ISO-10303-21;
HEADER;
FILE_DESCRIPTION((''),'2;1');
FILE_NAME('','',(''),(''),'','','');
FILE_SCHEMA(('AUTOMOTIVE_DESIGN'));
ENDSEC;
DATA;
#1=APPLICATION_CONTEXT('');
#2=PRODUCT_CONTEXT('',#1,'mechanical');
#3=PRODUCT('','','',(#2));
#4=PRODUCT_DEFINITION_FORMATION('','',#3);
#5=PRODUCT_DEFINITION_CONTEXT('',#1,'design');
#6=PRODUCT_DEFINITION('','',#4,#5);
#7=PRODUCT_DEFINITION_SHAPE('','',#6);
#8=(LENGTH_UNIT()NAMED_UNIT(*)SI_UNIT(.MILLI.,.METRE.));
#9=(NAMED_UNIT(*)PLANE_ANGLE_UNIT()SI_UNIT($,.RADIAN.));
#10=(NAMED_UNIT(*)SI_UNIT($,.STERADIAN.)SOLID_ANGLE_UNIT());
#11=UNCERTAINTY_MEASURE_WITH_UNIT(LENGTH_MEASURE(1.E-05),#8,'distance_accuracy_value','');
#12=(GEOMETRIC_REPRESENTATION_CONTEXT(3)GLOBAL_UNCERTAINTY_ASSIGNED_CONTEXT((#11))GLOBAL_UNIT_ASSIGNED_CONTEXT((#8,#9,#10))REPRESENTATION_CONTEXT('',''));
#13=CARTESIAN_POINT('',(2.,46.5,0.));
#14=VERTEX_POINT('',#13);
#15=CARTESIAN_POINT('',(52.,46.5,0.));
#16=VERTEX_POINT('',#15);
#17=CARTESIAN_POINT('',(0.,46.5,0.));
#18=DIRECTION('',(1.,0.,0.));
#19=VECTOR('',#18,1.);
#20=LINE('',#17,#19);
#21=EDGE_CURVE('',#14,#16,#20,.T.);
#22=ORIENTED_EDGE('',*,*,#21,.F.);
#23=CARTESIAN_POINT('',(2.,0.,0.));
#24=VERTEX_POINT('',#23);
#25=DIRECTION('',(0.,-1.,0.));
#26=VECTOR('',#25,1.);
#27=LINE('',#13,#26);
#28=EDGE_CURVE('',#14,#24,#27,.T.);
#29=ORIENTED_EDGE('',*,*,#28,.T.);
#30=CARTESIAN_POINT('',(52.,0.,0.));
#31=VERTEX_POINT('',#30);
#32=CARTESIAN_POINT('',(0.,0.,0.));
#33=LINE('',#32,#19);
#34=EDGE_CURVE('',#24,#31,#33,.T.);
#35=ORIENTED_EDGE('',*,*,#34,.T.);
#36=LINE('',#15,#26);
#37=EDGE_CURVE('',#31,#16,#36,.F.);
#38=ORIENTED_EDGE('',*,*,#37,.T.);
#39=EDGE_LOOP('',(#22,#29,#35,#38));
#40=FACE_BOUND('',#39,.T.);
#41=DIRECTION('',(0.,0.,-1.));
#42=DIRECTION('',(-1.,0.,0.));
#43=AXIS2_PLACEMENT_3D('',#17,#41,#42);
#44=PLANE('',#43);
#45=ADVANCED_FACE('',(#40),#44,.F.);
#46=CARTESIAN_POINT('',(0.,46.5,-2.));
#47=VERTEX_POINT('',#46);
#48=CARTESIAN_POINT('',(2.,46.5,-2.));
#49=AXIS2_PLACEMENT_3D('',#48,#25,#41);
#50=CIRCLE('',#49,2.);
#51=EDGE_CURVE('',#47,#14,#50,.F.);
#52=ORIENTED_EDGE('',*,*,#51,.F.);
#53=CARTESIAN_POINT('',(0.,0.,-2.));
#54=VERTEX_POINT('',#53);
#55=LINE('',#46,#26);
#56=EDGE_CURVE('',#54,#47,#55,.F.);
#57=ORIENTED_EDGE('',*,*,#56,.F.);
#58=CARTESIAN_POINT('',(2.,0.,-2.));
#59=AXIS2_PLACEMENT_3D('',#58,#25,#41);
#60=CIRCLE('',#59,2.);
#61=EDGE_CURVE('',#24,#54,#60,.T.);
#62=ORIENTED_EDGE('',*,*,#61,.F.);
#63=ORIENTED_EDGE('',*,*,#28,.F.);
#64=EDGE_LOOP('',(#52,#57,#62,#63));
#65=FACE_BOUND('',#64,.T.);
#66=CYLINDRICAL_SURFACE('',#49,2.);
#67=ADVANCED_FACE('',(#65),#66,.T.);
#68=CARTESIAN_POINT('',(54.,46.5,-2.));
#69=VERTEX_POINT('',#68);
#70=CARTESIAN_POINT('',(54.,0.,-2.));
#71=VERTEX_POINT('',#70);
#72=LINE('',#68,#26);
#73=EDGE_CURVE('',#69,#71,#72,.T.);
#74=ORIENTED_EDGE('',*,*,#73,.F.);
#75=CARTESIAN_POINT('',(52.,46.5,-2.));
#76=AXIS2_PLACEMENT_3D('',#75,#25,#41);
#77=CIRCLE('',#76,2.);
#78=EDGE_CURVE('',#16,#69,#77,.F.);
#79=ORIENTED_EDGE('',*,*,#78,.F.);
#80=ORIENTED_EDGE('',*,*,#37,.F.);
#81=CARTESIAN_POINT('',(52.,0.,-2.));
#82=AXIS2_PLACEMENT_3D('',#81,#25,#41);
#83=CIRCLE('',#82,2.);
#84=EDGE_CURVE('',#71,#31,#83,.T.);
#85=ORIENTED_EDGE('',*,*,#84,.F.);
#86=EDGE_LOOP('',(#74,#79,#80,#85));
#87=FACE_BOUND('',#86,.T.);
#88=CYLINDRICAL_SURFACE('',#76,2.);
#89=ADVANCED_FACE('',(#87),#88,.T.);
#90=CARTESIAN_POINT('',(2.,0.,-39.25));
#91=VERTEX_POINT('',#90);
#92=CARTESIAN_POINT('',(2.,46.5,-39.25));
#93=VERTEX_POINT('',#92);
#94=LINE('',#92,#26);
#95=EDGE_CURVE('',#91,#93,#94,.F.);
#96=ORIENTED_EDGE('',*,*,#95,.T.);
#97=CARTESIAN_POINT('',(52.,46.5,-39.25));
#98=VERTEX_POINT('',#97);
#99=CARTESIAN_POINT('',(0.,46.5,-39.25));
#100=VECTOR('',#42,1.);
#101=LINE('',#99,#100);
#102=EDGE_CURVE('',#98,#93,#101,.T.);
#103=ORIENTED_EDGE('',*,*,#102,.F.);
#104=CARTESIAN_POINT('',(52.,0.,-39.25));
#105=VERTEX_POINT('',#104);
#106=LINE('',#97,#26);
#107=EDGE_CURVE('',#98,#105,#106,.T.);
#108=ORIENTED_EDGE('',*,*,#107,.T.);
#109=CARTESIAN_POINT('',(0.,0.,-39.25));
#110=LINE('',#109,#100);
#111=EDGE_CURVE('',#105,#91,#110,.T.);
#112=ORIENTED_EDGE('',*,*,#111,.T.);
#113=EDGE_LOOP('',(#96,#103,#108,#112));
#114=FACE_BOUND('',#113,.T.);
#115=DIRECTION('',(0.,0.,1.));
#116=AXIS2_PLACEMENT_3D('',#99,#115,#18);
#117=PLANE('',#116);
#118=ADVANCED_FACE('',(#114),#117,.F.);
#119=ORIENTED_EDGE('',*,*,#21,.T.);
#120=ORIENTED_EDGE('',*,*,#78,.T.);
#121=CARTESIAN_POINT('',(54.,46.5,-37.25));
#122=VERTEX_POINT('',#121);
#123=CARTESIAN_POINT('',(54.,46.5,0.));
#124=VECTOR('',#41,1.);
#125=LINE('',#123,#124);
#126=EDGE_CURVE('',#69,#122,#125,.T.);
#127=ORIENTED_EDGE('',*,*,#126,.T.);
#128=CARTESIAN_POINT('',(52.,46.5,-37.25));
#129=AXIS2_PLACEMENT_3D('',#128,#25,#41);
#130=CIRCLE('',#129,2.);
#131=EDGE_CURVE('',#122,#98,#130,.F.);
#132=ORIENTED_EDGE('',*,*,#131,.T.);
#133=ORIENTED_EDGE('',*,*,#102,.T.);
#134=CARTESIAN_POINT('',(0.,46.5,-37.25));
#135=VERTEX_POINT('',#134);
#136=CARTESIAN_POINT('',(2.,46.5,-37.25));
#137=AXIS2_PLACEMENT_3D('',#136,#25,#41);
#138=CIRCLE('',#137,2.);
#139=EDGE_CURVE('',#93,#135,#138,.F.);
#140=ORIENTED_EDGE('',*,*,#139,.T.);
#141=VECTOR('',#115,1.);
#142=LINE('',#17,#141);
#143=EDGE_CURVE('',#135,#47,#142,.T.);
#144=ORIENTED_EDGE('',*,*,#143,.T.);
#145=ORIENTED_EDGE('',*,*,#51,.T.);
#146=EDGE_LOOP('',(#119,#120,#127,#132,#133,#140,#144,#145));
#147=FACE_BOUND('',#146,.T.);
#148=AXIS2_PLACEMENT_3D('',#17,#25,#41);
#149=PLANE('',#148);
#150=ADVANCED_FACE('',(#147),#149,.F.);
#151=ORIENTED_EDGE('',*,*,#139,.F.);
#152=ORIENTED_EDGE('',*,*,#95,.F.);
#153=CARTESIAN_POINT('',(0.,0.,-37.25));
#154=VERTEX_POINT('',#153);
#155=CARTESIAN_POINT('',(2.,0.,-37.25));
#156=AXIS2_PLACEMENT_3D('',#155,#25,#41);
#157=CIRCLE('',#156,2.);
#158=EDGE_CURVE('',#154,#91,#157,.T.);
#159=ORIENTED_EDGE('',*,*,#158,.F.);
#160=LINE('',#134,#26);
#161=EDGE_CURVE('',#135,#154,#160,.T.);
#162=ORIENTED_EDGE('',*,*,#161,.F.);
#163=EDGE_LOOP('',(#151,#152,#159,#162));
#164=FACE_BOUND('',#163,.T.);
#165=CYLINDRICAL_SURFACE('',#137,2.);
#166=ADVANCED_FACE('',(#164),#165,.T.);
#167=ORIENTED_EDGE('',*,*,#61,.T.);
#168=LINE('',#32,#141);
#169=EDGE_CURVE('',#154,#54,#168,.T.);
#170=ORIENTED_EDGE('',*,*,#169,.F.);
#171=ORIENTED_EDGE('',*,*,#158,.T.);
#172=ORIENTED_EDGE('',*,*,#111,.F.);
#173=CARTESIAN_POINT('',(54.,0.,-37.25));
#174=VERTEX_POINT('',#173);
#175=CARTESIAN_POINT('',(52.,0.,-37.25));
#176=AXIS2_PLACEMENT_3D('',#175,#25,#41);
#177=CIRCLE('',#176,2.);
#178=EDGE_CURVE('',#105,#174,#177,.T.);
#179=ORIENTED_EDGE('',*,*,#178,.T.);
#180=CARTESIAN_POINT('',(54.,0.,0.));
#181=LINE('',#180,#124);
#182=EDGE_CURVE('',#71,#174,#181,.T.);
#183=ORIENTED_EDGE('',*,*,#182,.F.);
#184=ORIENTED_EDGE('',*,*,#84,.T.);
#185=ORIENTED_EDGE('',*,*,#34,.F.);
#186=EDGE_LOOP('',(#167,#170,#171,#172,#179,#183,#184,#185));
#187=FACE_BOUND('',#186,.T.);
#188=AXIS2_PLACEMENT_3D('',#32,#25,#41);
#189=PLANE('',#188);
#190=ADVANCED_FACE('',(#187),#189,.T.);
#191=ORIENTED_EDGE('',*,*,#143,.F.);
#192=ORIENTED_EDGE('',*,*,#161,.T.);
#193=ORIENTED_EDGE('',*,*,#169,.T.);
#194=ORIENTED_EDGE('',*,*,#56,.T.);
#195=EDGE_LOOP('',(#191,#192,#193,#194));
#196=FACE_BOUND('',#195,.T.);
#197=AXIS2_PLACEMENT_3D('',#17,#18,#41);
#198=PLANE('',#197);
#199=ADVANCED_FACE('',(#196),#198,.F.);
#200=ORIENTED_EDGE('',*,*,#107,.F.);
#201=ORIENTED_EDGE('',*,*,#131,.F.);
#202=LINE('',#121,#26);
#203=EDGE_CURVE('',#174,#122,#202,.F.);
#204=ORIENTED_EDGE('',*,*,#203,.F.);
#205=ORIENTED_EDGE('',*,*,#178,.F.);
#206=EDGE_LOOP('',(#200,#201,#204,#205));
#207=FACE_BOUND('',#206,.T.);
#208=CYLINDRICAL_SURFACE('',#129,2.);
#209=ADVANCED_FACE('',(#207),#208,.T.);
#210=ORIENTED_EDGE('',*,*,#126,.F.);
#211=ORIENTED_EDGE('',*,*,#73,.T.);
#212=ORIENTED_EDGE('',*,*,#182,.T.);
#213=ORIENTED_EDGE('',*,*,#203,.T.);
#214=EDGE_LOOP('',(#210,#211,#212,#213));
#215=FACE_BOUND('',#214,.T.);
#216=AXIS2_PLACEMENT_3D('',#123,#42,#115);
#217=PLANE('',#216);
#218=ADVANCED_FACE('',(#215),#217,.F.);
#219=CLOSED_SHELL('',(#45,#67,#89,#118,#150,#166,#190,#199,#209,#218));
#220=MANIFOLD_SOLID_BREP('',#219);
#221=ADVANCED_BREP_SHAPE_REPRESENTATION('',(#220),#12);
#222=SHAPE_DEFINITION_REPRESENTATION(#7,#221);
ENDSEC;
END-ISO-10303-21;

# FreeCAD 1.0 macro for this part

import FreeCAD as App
import Part
import Sketcher
Q = App.Units.Quantity


def edges_at(feature, points):
    """Names of the edges that pass closest to the given points."""
    edges = feature.Shape.Edges
    near = lambda p: min(range(len(edges)), key=lambda i: edges[i].distToShape(Part.Vertex(*p))[0])
    return sorted({f"Edge{near(p) + 1}" for p in points})


def add_polygon(sketch, points):
    """Adds a closed chain of lines whose ends are joined by coincident constraints."""
    first, n = sketch.GeometryCount, len(points)
    for a, b in zip(points, points[1:] + points[:1]):
        sketch.addGeometry(Part.LineSegment(App.Vector(*a, 0), App.Vector(*b, 0)), False)
    for i in range(n):
        sketch.addConstraint(Sketcher.Constraint("Coincident", first + i, 2, first + (i + 1) % n, 1))

doc = App.newDocument("Part")
body = doc.addObject("PartDesign::Body", "Body")

# Sketch on XZ plane
sketch1 = doc.addObject("Sketcher::SketchObject", "Sketch")
body.addObject(sketch1)
sketch1.AttachmentSupport = (doc.XZ_Plane, [""])
sketch1.MapMode = "FlatFace"
add_polygon(sketch1, [(0, -39), (0, 0), (54, 0), (54, -39)])  # lines 0-3
sketch1.addConstraint(Sketcher.Constraint("Vertical", 0))
sketch1.addConstraint(Sketcher.Constraint("Horizontal", 1))
sketch1.addConstraint(Sketcher.Constraint("Vertical", 2))
sketch1.addConstraint(Sketcher.Constraint("Horizontal", 3))
sketch1.addConstraint(Sketcher.Constraint("Coincident", 0, 2, -1, 1))
sketch1.addConstraint(Sketcher.Constraint("DistanceX", 1, 1, 1, 2, Q("54 mm")))
sketch1.addConstraint(Sketcher.Constraint("DistanceY", 0, 1, 0, 2, Q("39.25 mm")))
pad1 = doc.addObject("PartDesign::Pad", "Pad")
body.addObject(pad1)
pad1.Profile = sketch1
pad1.Length = 46.5
pad1.Reversed = True
doc.recompute()

fillet = doc.addObject("PartDesign::Fillet", "Fillet")
body.addObject(fillet)
fillet.Base = (pad1, edges_at(pad1, [(0, 23.25, 0)]))
fillet.Radius = 2
doc.recompute()

fillet2 = doc.addObject("PartDesign::Fillet", "Fillet001")
body.addObject(fillet2)
fillet2.Base = (fillet, edges_at(fillet, [(0, 23.25, -39.25), (54, 23.25, -39.25), (54, 23.25, 0)]))
fillet2.Radius = 2

doc.recompute()
